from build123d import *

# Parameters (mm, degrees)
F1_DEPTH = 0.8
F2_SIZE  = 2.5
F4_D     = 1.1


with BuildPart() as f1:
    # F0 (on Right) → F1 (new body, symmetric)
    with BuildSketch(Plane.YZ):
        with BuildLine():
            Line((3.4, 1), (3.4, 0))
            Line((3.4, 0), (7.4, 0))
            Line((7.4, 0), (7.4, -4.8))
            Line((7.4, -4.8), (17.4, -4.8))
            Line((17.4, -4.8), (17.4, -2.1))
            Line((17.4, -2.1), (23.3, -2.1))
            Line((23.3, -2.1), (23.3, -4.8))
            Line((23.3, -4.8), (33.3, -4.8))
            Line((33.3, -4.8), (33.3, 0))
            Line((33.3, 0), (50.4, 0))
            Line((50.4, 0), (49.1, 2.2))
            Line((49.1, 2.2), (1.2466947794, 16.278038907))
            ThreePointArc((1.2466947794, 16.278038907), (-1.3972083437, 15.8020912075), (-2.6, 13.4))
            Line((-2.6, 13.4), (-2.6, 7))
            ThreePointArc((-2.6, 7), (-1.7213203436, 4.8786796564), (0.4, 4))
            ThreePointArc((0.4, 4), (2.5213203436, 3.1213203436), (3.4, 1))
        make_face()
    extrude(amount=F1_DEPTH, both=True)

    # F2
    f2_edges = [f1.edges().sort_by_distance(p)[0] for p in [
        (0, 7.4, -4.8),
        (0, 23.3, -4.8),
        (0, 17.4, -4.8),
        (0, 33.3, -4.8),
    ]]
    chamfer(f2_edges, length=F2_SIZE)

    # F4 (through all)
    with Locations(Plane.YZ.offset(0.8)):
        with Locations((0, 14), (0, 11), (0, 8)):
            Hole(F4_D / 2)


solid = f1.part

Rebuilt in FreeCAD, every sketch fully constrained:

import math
import FreeCAD as App
import Part
import Sketcher
from FreeCAD import Vector


def edges_at(feature, points):
    """Names of the edges that pass closest to the given points."""
    edges = feature.Shape.Edges
    near = lambda p: min(range(len(edges)), key=lambda i: edges[i].distToShape(Part.Vertex(*p))[0])
    return sorted({f"Edge{near(p) + 1}" for p in points})

doc = App.newDocument("Part")
body = doc.addObject("PartDesign::Body", "Body")

# Sketch on YZ plane
sketch1 = doc.addObject("Sketcher::SketchObject", "Sketch")
body.addObject(sketch1)
sketch1.AttachmentSupport = (doc.YZ_Plane, [""])
sketch1.MapMode = "FlatFace"
sketch1.addGeometry(Part.LineSegment(Vector(3.4, 1, 0), Vector(3.4, 0, 0)), False)
sketch1.addGeometry(Part.LineSegment(Vector(3.4, 0, 0), Vector(7.4, 0, 0)), False)
sketch1.addGeometry(Part.LineSegment(Vector(7.4, 0, 0), Vector(7.4, -4.8, 0)), False)
sketch1.addGeometry(Part.LineSegment(Vector(7.4, -4.8, 0), Vector(17.4, -4.8, 0)), False)
sketch1.addGeometry(Part.LineSegment(Vector(17.4, -4.8, 0), Vector(17.4, -2.1, 0)), False)
sketch1.addGeometry(Part.LineSegment(Vector(17.4, -2.1, 0), Vector(23.3, -2.1, 0)), False)
sketch1.addGeometry(Part.LineSegment(Vector(23.3, -2.1, 0), Vector(23.3, -4.8, 0)), False)
sketch1.addGeometry(Part.LineSegment(Vector(23.3, -4.8, 0), Vector(33.3, -4.8, 0)), False)
sketch1.addGeometry(Part.LineSegment(Vector(33.3, -4.8, 0), Vector(33.3, 0, 0)), False)
sketch1.addGeometry(Part.LineSegment(Vector(33.3, 0, 0), Vector(50.4, 0, 0)), False)
sketch1.addGeometry(Part.LineSegment(Vector(50.4, 0, 0), Vector(49.1, 2.2, 0)), False)
sketch1.addGeometry(Part.LineSegment(Vector(49.1, 2.2, 0), Vector(1.2, 16.3, 0)), False)
sketch1.addGeometry(Part.ArcOfCircle(Part.Circle(Vector(0.4, 13.4, 0), Vector(0, 0, 1), 3), math.radians(74), math.radians(180)), False)
sketch1.addGeometry(Part.LineSegment(Vector(-2.6, 13.4, 0), Vector(-2.6, 7, 0)), False)
sketch1.addGeometry(Part.ArcOfCircle(Part.Circle(Vector(0.4, 7, 0), Vector(0, 0, 1), 3), math.radians(180), math.radians(270)), False)
sketch1.addGeometry(Part.ArcOfCircle(Part.Circle(Vector(0.4, 1, 0), Vector(0, 0, 1), 3), math.radians(0), math.radians(90)), False)
sketch1.addConstraint(Sketcher.Constraint("Coincident", 0, 2, 1, 1))
sketch1.addConstraint(Sketcher.Constraint("Coincident", 1, 2, 2, 1))
sketch1.addConstraint(Sketcher.Constraint("Coincident", 2, 2, 3, 1))
sketch1.addConstraint(Sketcher.Constraint("Coincident", 3, 2, 4, 1))
sketch1.addConstraint(Sketcher.Constraint("Coincident", 4, 2, 5, 1))
sketch1.addConstraint(Sketcher.Constraint("Coincident", 5, 2, 6, 1))
sketch1.addConstraint(Sketcher.Constraint("Coincident", 6, 2, 7, 1))
sketch1.addConstraint(Sketcher.Constraint("Coincident", 7, 2, 8, 1))
sketch1.addConstraint(Sketcher.Constraint("Coincident", 8, 2, 9, 1))
sketch1.addConstraint(Sketcher.Constraint("Coincident", 9, 2, 10, 1))
sketch1.addConstraint(Sketcher.Constraint("Coincident", 10, 2, 11, 1))
sketch1.addConstraint(Sketcher.Constraint("Tangent", 11, 2, 12, 1))
sketch1.addConstraint(Sketcher.Constraint("Tangent", 12, 2, 13, 1))
sketch1.addConstraint(Sketcher.Constraint("Tangent", 13, 2, 14, 1))
sketch1.addConstraint(Sketcher.Constraint("Tangent", 14, 2, 15, 2))
sketch1.addConstraint(Sketcher.Constraint("Tangent", 15, 1, 0, 1))
sketch1.addConstraint(Sketcher.Constraint("Vertical", 0))
sketch1.addConstraint(Sketcher.Constraint("Horizontal", 1))
sketch1.addConstraint(Sketcher.Constraint("Vertical", 2))
sketch1.addConstraint(Sketcher.Constraint("Horizontal", 3))
sketch1.addConstraint(Sketcher.Constraint("Vertical", 4))
sketch1.addConstraint(Sketcher.Constraint("Horizontal", 5))
sketch1.addConstraint(Sketcher.Constraint("Vertical", 6))
sketch1.addConstraint(Sketcher.Constraint("Horizontal", 7))
sketch1.addConstraint(Sketcher.Constraint("Vertical", 8))
sketch1.addConstraint(Sketcher.Constraint("Horizontal", 9))
sketch1.addConstraint(Sketcher.Constraint("Vertical", 13))
sketch1.addConstraint(Sketcher.Constraint("Equal", 12, 14))
sketch1.addConstraint(Sketcher.Constraint("Equal", 14, 15))
sketch1.addConstraint(Sketcher.Constraint("PointOnObject", 0, 2, -1))
sketch1.addConstraint(Sketcher.Constraint("PointOnObject", 8, 2, -1))
sketch1.addConstraint(Sketcher.Constraint("Horizontal", 3, 2, 6, 2))
sketch1.addConstraint(Sketcher.Constraint("Vertical", 14, 3, 15, 3))
sketch1.addConstraint(Sketcher.Constraint("Equal", 3, 7))
sketch1.addConstraint(Sketcher.Constraint("Radius", 12, 3.0))
sketch1.addConstraint(Sketcher.Constraint("DistanceX", 1, 1, 1, 2, 4.0))
sketch1.addConstraint(Sketcher.Constraint("DistanceX", 3, 1, 3, 2, 10.0))
sketch1.addConstraint(Sketcher.Constraint("DistanceY", 0, 2, 0, 1, 1.0))
sketch1.addConstraint(Sketcher.Constraint("DistanceX", 5, 1, 5, 2, 5.9))
sketch1.addConstraint(Sketcher.Constraint("DistanceX", 9, 1, 9, 2, 17.1))
sketch1.addConstraint(Sketcher.Constraint("DistanceY", 2, 2, 2, 1, 4.8))
sketch1.addConstraint(Sketcher.Constraint("DistanceY", 4, 1, 4, 2, 2.7))
sketch1.addConstraint(Sketcher.Constraint("DistanceY", 13, 2, 13, 1, 6.4))
sketch1.addConstraint(Sketcher.Constraint("DistanceY", 7, 2, 10, 2, 7.0))
sketch1.addConstraint(Sketcher.Constraint("DistanceX", -1, 1, 12, 3, 0.4))
sketch1.addConstraint(Sketcher.Constraint("DistanceX", -1, 1, 10, 2, 49.1))
pad1 = doc.addObject("PartDesign::Pad", "Pad")
body.addObject(pad1)
pad1.Profile = sketch1
pad1.Length = 1.6
pad1.Midplane = True
doc.recompute()

chamfer = doc.addObject("PartDesign::Chamfer", "Chamfer")
body.addObject(chamfer)
chamfer.Base = (pad1, edges_at(pad1, [
    (0, 7.4, -4.8),
    (0, 23.3, -4.8),
    (0, 17.4, -4.8),
    (0, 33.3, -4.8),
]))
chamfer.Size = 2.5

# Sketch on YZ plane
sketch2 = doc.addObject("Sketcher::SketchObject", "Sketch001")
body.addObject(sketch2)
sketch2.AttachmentSupport = (doc.YZ_Plane, [""])
sketch2.MapMode = "FlatFace"
sketch2.AttachmentOffset = App.Placement(Vector(0, 0, 0.8), App.Rotation())
sketch2.addGeometry(Part.Circle(Vector(0, 14, 0), Vector(0, 0, 1), 0.6), False)
sketch2.addGeometry(Part.Circle(Vector(0, 11, 0), Vector(0, 0, 1), 0.6), False)
sketch2.addGeometry(Part.Circle(Vector(0, 8, 0), Vector(0, 0, 1), 0.6), False)
sketch2.addConstraint(Sketcher.Constraint("Equal", 0, 1))
sketch2.addConstraint(Sketcher.Constraint("Equal", 1, 2))
sketch2.addConstraint(Sketcher.Constraint("PointOnObject", 0, 3, -2))
sketch2.addConstraint(Sketcher.Constraint("PointOnObject", 1, 3, -2))
sketch2.addConstraint(Sketcher.Constraint("PointOnObject", 2, 3, -2))
sketch2.addConstraint(Sketcher.Constraint("Diameter", 0, 1.1))
sketch2.addConstraint(Sketcher.Constraint("DistanceY", -1, 1, 0, 3, 14.0))
sketch2.addConstraint(Sketcher.Constraint("DistanceY", -1, 1, 1, 3, 11.0))
sketch2.addConstraint(Sketcher.Constraint("DistanceY", -1, 1, 2, 3, 8.0))
doc.recompute()
hole = doc.addObject("PartDesign::Hole", "Hole")
body.addObject(hole)
hole.Profile = sketch2
hole.ThreadType = "None"
hole.Diameter = 1.1
hole.DepthType = "ThroughAll"

doc.recompute()
